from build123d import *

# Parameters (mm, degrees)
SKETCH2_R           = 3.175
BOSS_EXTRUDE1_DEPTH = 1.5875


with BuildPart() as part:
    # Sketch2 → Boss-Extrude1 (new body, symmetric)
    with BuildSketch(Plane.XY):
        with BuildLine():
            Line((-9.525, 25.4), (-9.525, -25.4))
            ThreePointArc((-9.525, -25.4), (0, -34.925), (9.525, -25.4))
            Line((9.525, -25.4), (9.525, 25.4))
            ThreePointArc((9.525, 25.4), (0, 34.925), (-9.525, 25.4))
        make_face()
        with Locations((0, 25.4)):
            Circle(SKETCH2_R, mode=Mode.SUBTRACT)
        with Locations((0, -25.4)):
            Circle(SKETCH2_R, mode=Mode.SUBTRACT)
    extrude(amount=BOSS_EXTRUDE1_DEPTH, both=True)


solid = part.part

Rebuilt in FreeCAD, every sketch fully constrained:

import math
import FreeCAD as App
import Part
import Sketcher
Q = App.Units.Quantity

doc = App.newDocument("Part")
params = doc.addObject("Spreadsheet::Sheet", "Params")
for row, (alias, value) in enumerate([
    ("sketch1_diameter", "0.25 in"),
    ("sketch1_height", "2 in"),
    ("sketch1_radius", "0.375 in"),
    ("pad1_length", "0.125 in"),
], start=1):
    params.set(f"A{row}", alias)
    params.set(f"B{row}", "=" + value)
    params.setAlias(f"B{row}", alias)

body = doc.addObject("PartDesign::Body", "Body")

sketch1 = doc.addObject("Sketcher::SketchObject", "Sketch")
body.addObject(sketch1)
sketch1.AttachmentSupport = (doc.XY_Plane, [""])
sketch1.MapMode = "FlatFace"
sketch1.addGeometry([
    Part.LineSegment(App.Vector(-9.5, 25.4, 0), App.Vector(-9.5, -25.4, 0)),
    Part.ArcOfCircle(Part.Circle(App.Vector(0, -25.4, 0), App.Vector(0, 0, 1), 9.5), math.radians(180), math.radians(360)),
    Part.LineSegment(App.Vector(9.5, -25.4, 0), App.Vector(9.5, 25.4, 0)),
    Part.ArcOfCircle(Part.Circle(App.Vector(0, 25.4, 0), App.Vector(0, 0, 1), 9.5), math.radians(0), math.radians(180)),
    Part.Circle(App.Vector(0, -25.4, 0), App.Vector(0, 0, 1), 3.2),
    Part.Circle(App.Vector(0, 25.4, 0), App.Vector(0, 0, 1), 3.2),
], False)
sketch1.addConstraint([
    Sketcher.Constraint("Tangent", 0, 2, 1, 1),
    Sketcher.Constraint("Tangent", 1, 2, 2, 1),
    Sketcher.Constraint("Tangent", 2, 2, 3, 1),
    Sketcher.Constraint("Tangent", 3, 2, 0, 1),
    Sketcher.Constraint("Vertical", 0),
    Sketcher.Constraint("Vertical", 2),
    Sketcher.Constraint("Coincident", 4, 3, 1, 3),
    Sketcher.Constraint("Coincident", 5, 3, 3, 3),
    Sketcher.Constraint("Equal", 4, 5),
    Sketcher.Constraint("Symmetric", 1, 3, 3, 3, -1, 1),
    Sketcher.Constraint("Diameter", 4, Q("0.25 in")),
    Sketcher.Constraint("DistanceY", 0, 2, 0, 1, Q("2 in")),
    Sketcher.Constraint("Radius", 1, Q("0.375 in")),
])
sketch1.setExpression("Constraints[10]", "Params.sketch1_diameter")
sketch1.setExpression("Constraints[11]", "Params.sketch1_height")
sketch1.setExpression("Constraints[12]", "Params.sketch1_radius")
pad1 = doc.addObject("PartDesign::Pad", "Pad")
body.addObject(pad1)
pad1.Profile = sketch1
pad1.setExpression("Length", "Params.pad1_length")
pad1.Midplane = True

doc.recompute()
